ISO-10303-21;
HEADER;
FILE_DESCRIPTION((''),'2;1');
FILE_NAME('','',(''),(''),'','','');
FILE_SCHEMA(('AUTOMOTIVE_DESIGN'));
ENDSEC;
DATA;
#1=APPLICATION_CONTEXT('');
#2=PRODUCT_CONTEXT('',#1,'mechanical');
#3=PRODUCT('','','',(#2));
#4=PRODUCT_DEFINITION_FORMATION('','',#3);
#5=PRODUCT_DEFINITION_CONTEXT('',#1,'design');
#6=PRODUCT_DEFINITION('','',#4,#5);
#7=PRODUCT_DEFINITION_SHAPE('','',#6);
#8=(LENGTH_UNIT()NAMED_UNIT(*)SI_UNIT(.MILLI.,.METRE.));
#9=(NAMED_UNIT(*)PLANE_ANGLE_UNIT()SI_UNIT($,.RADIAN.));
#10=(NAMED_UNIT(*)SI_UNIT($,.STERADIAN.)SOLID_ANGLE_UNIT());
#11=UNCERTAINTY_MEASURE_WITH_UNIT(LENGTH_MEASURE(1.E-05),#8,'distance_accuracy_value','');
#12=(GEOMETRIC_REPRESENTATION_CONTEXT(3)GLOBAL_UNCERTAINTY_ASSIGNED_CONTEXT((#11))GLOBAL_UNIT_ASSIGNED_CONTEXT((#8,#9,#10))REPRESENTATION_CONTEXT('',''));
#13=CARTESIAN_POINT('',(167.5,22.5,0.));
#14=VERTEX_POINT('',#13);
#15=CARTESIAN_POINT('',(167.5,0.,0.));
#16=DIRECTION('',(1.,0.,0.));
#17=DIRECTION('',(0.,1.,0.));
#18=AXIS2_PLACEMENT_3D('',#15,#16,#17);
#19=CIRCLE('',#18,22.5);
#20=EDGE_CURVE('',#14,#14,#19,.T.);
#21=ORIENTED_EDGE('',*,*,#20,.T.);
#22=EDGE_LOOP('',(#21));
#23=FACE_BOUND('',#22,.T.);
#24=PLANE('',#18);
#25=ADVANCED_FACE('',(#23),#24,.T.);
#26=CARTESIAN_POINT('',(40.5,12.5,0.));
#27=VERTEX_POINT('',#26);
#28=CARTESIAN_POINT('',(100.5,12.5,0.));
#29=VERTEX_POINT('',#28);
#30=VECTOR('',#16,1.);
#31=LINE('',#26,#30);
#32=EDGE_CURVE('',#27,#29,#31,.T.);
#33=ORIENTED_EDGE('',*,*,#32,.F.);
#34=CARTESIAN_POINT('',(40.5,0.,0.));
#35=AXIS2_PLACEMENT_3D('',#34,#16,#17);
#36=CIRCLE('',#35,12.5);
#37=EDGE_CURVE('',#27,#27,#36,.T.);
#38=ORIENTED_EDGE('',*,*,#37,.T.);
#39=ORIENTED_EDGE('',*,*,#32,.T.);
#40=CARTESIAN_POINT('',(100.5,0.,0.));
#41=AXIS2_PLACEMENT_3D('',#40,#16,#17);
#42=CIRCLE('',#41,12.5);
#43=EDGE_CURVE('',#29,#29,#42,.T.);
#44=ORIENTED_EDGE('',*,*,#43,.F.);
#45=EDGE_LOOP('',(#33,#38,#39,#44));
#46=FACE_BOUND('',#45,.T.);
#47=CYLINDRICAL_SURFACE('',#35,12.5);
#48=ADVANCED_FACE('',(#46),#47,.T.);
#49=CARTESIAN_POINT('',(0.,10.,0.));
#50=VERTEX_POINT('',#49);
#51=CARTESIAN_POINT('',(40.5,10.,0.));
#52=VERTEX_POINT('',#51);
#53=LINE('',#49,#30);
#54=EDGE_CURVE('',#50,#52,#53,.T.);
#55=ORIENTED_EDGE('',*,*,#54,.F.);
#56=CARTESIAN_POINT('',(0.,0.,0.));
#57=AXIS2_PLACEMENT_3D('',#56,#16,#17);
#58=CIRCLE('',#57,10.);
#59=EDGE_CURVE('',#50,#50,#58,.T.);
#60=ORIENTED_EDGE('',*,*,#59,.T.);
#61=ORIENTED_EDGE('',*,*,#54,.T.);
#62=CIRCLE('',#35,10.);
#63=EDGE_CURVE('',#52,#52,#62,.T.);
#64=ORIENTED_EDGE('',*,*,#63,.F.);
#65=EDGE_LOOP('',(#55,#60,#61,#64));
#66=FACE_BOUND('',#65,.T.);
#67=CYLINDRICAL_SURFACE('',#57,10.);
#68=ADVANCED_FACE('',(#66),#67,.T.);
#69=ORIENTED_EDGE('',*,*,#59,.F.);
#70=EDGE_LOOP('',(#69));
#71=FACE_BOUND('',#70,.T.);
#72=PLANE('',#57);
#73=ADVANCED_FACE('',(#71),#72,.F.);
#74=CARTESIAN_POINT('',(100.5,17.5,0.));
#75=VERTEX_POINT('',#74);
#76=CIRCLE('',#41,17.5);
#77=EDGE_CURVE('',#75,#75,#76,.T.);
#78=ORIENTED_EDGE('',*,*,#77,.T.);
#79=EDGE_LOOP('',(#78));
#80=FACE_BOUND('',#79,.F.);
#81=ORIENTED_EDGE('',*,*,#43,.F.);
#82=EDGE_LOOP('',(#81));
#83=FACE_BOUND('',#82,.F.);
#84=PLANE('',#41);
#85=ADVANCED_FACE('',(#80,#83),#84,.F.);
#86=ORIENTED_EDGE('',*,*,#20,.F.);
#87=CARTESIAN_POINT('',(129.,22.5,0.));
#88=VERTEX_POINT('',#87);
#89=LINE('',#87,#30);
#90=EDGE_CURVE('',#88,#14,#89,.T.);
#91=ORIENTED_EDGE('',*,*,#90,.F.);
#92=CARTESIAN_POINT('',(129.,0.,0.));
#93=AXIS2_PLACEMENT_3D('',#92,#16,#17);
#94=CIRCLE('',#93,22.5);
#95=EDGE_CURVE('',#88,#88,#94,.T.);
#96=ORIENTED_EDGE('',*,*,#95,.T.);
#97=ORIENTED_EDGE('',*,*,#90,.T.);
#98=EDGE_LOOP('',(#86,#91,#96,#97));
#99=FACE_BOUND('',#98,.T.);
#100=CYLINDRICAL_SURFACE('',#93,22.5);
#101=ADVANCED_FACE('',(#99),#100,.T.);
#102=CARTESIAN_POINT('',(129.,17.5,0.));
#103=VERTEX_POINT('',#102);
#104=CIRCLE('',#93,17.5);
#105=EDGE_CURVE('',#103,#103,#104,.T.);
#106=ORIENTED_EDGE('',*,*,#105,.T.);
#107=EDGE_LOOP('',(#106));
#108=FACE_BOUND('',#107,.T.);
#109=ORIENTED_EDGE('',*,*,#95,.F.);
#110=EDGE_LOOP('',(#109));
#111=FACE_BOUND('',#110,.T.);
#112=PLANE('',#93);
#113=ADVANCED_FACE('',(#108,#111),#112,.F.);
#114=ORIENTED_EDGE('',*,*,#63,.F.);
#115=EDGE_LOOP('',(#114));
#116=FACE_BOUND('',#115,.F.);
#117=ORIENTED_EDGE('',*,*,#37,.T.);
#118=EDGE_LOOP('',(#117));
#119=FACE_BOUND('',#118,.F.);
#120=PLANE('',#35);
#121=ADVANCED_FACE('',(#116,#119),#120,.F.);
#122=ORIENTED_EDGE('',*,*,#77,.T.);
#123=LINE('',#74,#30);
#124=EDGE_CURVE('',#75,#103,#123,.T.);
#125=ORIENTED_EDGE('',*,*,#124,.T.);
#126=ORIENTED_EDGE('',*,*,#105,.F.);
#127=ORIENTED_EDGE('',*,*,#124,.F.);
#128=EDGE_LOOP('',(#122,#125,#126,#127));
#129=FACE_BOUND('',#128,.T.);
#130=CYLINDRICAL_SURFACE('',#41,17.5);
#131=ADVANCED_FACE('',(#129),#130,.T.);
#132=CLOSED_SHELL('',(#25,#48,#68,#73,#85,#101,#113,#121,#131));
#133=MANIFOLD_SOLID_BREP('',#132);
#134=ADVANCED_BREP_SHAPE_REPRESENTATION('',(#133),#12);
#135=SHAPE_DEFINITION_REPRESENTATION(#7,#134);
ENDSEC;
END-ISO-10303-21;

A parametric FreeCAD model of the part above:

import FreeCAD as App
import Part
import Sketcher
from FreeCAD import Vector

doc = App.newDocument("Part")
params = doc.addObject("Spreadsheet::Sheet", "Params")
for row, (alias, value) in enumerate([
    ("sketch1_width", "60 mm"),
    ("sketch1_height", "10 mm"),
    ("sketch1_height2", "5 mm"),
    ("sketch1_width2", "38.5 mm"),
    ("sketch1_width3", "28.5 mm"),
    ("revolution_angle", "360 deg"),
], start=1):
    params.set(f"A{row}", alias)
    params.set(f"B{row}", "=" + value)
    params.setAlias(f"B{row}", alias)

body = doc.addObject("PartDesign::Body", "Body")

# Sketch on XY plane
sketch1 = body.newObject("Sketcher::SketchObject", "Sketch")
sketch1.AttachmentSupport = (doc.getObject("XY_Plane"), [""])
sketch1.MapMode = "FlatFace"
sketch1.addGeometry([
    Part.LineSegment(Vector(0, 10, 0), Vector(0, 0, 0)),  # 0
    Part.LineSegment(Vector(0, 0, 0), Vector(167.5, 0, 0)),  # 1
    Part.LineSegment(Vector(167.5, 0, 0), Vector(167.5, 22.5, 0)),  # 2
    Part.LineSegment(Vector(167.5, 22.5, 0), Vector(129, 22.5, 0)),  # 3
    Part.LineSegment(Vector(129, 22.5, 0), Vector(129, 17.5, 0)),  # 4
    Part.LineSegment(Vector(129, 17.5, 0), Vector(100.5, 17.5, 0)),  # 5
    Part.LineSegment(Vector(100.5, 17.5, 0), Vector(100.5, 12.5, 0)),  # 6
    Part.LineSegment(Vector(100.5, 12.5, 0), Vector(40.5, 12.5, 0)),  # 7
    Part.LineSegment(Vector(40.5, 12.5, 0), Vector(40.5, 10, 0)),  # 8
    Part.LineSegment(Vector(40.5, 10, 0), Vector(0, 10, 0)),  # 9
], False)
sketch1.addConstraint([
    Sketcher.Constraint("Coincident", 0, 2, 1, 1),
    Sketcher.Constraint("Coincident", 1, 2, 2, 1),
    Sketcher.Constraint("Coincident", 2, 2, 3, 1),
    Sketcher.Constraint("Coincident", 3, 2, 4, 1),
    Sketcher.Constraint("Coincident", 4, 2, 5, 1),
    Sketcher.Constraint("Coincident", 5, 2, 6, 1),
    Sketcher.Constraint("Coincident", 6, 2, 7, 1),
    Sketcher.Constraint("Coincident", 7, 2, 8, 1),
    Sketcher.Constraint("Coincident", 8, 2, 9, 1),
    Sketcher.Constraint("Coincident", 9, 2, 0, 1),
    Sketcher.Constraint("Vertical", 0),
    Sketcher.Constraint("Horizontal", 1),
    Sketcher.Constraint("Vertical", 2),
    Sketcher.Constraint("Horizontal", 3),
    Sketcher.Constraint("Vertical", 4),
    Sketcher.Constraint("Horizontal", 5),
    Sketcher.Constraint("Vertical", 6),
    Sketcher.Constraint("Horizontal", 7),
    Sketcher.Constraint("Vertical", 8),
    Sketcher.Constraint("Horizontal", 9),
    Sketcher.Constraint("Coincident", 0, 2, -1, 1),
    Sketcher.Constraint("Equal", 4, 6),
    Sketcher.Constraint("DistanceX", 7, 2, 7, 1, 60.0),
    Sketcher.Constraint("DistanceY", 0, 2, 0, 1, 10.0),
    Sketcher.Constraint("DistanceY", 4, 2, 4, 1, 5.0),
    Sketcher.Constraint("DistanceX", 3, 2, 3, 1, 38.5),
    Sketcher.Constraint("DistanceX", 5, 2, 5, 1, 28.5),
    Sketcher.Constraint("DistanceX", 9, 2, 9, 1, 40.5),
    Sketcher.Constraint("DistanceY", 2, 1, 2, 2, 22.5),
])
sketch1.setExpression("Constraints[22]", "Params.sketch1_width")
sketch1.setExpression("Constraints[23]", "Params.sketch1_height")
sketch1.setExpression("Constraints[24]", "Params.sketch1_height2")
sketch1.setExpression("Constraints[25]", "Params.sketch1_width2")
sketch1.setExpression("Constraints[26]", "Params.sketch1_width3")
revolution = body.newObject("PartDesign::Revolution", "Revolution")
revolution.Profile = sketch1
revolution.ReferenceAxis = (sketch1, ["H_Axis"])
revolution.setExpression("Angle", "Params.revolution_angle")

doc.recompute()
